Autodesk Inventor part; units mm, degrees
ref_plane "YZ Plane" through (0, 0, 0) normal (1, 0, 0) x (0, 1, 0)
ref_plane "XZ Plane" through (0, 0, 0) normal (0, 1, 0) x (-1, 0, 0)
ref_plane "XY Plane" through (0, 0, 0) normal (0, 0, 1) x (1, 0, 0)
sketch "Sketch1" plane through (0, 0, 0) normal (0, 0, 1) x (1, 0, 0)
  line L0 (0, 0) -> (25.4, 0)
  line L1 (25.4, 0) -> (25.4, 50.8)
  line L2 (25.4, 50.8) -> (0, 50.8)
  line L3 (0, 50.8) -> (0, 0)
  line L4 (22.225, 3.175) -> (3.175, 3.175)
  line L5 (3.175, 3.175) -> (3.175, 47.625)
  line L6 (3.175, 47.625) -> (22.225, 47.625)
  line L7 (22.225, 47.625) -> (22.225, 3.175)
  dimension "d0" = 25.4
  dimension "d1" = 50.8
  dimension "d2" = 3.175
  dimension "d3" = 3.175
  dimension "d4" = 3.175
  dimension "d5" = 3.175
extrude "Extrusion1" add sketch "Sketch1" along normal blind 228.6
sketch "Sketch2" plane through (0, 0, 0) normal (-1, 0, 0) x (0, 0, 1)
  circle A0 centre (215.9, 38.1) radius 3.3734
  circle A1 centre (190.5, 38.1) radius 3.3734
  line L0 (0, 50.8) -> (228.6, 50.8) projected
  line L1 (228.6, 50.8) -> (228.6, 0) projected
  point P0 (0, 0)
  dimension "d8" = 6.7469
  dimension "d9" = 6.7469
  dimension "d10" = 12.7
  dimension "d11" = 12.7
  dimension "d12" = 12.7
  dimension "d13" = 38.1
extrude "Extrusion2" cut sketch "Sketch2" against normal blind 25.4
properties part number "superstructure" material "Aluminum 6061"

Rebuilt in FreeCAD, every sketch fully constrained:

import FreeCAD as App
import Part
import Sketcher

V = App.Vector
Q = App.Units.Quantity


def add_polygon(sketch, points):
    """Adds a closed chain of lines whose ends are joined by coincident constraints."""
    first, n = sketch.GeometryCount, len(points)
    for a, b in zip(points, points[1:] + points[:1]):
        sketch.addGeometry(Part.LineSegment(App.Vector(*a, 0), App.Vector(*b, 0)), False)
    for i in range(n):
        sketch.addConstraint(Sketcher.Constraint("Coincident", first + i, 2, first + (i + 1) % n, 1))

doc = App.newDocument("Part")
body = doc.addObject("PartDesign::Body", "Body")

# Sketch on XY plane
sketch1 = doc.addObject("Sketcher::SketchObject", "Sketch")
body.addObject(sketch1)
sketch1.AttachmentSupport = (doc.XY_Plane, [""])
sketch1.MapMode = "FlatFace"
add_polygon(sketch1, [(0, 51), (0, 0), (25, 0), (25, 51)])  # lines 0-3
add_polygon(sketch1, [(22, 48), (22, 3), (3, 3), (3, 48)])  # lines 4-7
sketch1.addConstraint(Sketcher.Constraint("Vertical", 0))
sketch1.addConstraint(Sketcher.Constraint("Horizontal", 1))
sketch1.addConstraint(Sketcher.Constraint("Vertical", 2))
sketch1.addConstraint(Sketcher.Constraint("Horizontal", 3))
sketch1.addConstraint(Sketcher.Constraint("Vertical", 4))
sketch1.addConstraint(Sketcher.Constraint("Horizontal", 5))
sketch1.addConstraint(Sketcher.Constraint("Vertical", 6))
sketch1.addConstraint(Sketcher.Constraint("Horizontal", 7))
sketch1.addConstraint(Sketcher.Constraint("Coincident", 0, 2, -1, 1))
sketch1.addConstraint(Sketcher.Constraint("DistanceX", 1, 1, 1, 2, Q("1 in")))
sketch1.addConstraint(Sketcher.Constraint("DistanceY", 0, 2, 0, 1, Q("2 in")))
sketch1.addConstraint(Sketcher.Constraint("DistanceY", -1, 1, 4, 2, Q("0.125 in")))
sketch1.addConstraint(Sketcher.Constraint("DistanceX", -1, 1, 5, 2, Q("0.125 in")))
sketch1.addConstraint(Sketcher.Constraint("DistanceX", 4, 2, 1, 2, Q("0.125 in")))
sketch1.addConstraint(Sketcher.Constraint("DistanceY", 6, 2, 3, 2, Q("0.125 in")))
pad1 = doc.addObject("PartDesign::Pad", "Pad")
body.addObject(pad1)
pad1.Profile = sketch1
pad1.Length = Q("9 in")

# Sketch on YZ plane
sketch2 = doc.addObject("Sketcher::SketchObject", "Sketch001")
body.addObject(sketch2)
sketch2.AttachmentSupport = (doc.YZ_Plane, [""])
sketch2.MapMode = "FlatFace"
sketch2.addGeometry(Part.Circle(V(38.1, 215.9, 0), V(0, 0, 1), 3.4), False)
sketch2.addGeometry(Part.Circle(V(38.1, 190.5, 0), V(0, 0, 1), 3.4), False)
sketch2.addConstraint(Sketcher.Constraint("Equal", 0, 1))
sketch2.addConstraint(Sketcher.Constraint("Vertical", 0, 3, 1, 3))
sketch2.addConstraint(Sketcher.Constraint("Diameter", 0, Q("0.265622 in")))
sketch2.addConstraint(Sketcher.Constraint("DistanceX", -1, 1, 0, 3, Q("1.5 in")))
sketch2.addConstraint(Sketcher.Constraint("DistanceY", 1, 3, 0, 3, Q("1 in")))
sketch2.addConstraint(Sketcher.Constraint("DistanceY", -1, 1, 0, 3, Q("8.5 in")))
pocket1 = doc.addObject("PartDesign::Pocket", "Pocket")
body.addObject(pocket1)
pocket1.Profile = sketch2
pocket1.Length = Q("1 in")
pocket1.Reversed = True

doc.recompute()
